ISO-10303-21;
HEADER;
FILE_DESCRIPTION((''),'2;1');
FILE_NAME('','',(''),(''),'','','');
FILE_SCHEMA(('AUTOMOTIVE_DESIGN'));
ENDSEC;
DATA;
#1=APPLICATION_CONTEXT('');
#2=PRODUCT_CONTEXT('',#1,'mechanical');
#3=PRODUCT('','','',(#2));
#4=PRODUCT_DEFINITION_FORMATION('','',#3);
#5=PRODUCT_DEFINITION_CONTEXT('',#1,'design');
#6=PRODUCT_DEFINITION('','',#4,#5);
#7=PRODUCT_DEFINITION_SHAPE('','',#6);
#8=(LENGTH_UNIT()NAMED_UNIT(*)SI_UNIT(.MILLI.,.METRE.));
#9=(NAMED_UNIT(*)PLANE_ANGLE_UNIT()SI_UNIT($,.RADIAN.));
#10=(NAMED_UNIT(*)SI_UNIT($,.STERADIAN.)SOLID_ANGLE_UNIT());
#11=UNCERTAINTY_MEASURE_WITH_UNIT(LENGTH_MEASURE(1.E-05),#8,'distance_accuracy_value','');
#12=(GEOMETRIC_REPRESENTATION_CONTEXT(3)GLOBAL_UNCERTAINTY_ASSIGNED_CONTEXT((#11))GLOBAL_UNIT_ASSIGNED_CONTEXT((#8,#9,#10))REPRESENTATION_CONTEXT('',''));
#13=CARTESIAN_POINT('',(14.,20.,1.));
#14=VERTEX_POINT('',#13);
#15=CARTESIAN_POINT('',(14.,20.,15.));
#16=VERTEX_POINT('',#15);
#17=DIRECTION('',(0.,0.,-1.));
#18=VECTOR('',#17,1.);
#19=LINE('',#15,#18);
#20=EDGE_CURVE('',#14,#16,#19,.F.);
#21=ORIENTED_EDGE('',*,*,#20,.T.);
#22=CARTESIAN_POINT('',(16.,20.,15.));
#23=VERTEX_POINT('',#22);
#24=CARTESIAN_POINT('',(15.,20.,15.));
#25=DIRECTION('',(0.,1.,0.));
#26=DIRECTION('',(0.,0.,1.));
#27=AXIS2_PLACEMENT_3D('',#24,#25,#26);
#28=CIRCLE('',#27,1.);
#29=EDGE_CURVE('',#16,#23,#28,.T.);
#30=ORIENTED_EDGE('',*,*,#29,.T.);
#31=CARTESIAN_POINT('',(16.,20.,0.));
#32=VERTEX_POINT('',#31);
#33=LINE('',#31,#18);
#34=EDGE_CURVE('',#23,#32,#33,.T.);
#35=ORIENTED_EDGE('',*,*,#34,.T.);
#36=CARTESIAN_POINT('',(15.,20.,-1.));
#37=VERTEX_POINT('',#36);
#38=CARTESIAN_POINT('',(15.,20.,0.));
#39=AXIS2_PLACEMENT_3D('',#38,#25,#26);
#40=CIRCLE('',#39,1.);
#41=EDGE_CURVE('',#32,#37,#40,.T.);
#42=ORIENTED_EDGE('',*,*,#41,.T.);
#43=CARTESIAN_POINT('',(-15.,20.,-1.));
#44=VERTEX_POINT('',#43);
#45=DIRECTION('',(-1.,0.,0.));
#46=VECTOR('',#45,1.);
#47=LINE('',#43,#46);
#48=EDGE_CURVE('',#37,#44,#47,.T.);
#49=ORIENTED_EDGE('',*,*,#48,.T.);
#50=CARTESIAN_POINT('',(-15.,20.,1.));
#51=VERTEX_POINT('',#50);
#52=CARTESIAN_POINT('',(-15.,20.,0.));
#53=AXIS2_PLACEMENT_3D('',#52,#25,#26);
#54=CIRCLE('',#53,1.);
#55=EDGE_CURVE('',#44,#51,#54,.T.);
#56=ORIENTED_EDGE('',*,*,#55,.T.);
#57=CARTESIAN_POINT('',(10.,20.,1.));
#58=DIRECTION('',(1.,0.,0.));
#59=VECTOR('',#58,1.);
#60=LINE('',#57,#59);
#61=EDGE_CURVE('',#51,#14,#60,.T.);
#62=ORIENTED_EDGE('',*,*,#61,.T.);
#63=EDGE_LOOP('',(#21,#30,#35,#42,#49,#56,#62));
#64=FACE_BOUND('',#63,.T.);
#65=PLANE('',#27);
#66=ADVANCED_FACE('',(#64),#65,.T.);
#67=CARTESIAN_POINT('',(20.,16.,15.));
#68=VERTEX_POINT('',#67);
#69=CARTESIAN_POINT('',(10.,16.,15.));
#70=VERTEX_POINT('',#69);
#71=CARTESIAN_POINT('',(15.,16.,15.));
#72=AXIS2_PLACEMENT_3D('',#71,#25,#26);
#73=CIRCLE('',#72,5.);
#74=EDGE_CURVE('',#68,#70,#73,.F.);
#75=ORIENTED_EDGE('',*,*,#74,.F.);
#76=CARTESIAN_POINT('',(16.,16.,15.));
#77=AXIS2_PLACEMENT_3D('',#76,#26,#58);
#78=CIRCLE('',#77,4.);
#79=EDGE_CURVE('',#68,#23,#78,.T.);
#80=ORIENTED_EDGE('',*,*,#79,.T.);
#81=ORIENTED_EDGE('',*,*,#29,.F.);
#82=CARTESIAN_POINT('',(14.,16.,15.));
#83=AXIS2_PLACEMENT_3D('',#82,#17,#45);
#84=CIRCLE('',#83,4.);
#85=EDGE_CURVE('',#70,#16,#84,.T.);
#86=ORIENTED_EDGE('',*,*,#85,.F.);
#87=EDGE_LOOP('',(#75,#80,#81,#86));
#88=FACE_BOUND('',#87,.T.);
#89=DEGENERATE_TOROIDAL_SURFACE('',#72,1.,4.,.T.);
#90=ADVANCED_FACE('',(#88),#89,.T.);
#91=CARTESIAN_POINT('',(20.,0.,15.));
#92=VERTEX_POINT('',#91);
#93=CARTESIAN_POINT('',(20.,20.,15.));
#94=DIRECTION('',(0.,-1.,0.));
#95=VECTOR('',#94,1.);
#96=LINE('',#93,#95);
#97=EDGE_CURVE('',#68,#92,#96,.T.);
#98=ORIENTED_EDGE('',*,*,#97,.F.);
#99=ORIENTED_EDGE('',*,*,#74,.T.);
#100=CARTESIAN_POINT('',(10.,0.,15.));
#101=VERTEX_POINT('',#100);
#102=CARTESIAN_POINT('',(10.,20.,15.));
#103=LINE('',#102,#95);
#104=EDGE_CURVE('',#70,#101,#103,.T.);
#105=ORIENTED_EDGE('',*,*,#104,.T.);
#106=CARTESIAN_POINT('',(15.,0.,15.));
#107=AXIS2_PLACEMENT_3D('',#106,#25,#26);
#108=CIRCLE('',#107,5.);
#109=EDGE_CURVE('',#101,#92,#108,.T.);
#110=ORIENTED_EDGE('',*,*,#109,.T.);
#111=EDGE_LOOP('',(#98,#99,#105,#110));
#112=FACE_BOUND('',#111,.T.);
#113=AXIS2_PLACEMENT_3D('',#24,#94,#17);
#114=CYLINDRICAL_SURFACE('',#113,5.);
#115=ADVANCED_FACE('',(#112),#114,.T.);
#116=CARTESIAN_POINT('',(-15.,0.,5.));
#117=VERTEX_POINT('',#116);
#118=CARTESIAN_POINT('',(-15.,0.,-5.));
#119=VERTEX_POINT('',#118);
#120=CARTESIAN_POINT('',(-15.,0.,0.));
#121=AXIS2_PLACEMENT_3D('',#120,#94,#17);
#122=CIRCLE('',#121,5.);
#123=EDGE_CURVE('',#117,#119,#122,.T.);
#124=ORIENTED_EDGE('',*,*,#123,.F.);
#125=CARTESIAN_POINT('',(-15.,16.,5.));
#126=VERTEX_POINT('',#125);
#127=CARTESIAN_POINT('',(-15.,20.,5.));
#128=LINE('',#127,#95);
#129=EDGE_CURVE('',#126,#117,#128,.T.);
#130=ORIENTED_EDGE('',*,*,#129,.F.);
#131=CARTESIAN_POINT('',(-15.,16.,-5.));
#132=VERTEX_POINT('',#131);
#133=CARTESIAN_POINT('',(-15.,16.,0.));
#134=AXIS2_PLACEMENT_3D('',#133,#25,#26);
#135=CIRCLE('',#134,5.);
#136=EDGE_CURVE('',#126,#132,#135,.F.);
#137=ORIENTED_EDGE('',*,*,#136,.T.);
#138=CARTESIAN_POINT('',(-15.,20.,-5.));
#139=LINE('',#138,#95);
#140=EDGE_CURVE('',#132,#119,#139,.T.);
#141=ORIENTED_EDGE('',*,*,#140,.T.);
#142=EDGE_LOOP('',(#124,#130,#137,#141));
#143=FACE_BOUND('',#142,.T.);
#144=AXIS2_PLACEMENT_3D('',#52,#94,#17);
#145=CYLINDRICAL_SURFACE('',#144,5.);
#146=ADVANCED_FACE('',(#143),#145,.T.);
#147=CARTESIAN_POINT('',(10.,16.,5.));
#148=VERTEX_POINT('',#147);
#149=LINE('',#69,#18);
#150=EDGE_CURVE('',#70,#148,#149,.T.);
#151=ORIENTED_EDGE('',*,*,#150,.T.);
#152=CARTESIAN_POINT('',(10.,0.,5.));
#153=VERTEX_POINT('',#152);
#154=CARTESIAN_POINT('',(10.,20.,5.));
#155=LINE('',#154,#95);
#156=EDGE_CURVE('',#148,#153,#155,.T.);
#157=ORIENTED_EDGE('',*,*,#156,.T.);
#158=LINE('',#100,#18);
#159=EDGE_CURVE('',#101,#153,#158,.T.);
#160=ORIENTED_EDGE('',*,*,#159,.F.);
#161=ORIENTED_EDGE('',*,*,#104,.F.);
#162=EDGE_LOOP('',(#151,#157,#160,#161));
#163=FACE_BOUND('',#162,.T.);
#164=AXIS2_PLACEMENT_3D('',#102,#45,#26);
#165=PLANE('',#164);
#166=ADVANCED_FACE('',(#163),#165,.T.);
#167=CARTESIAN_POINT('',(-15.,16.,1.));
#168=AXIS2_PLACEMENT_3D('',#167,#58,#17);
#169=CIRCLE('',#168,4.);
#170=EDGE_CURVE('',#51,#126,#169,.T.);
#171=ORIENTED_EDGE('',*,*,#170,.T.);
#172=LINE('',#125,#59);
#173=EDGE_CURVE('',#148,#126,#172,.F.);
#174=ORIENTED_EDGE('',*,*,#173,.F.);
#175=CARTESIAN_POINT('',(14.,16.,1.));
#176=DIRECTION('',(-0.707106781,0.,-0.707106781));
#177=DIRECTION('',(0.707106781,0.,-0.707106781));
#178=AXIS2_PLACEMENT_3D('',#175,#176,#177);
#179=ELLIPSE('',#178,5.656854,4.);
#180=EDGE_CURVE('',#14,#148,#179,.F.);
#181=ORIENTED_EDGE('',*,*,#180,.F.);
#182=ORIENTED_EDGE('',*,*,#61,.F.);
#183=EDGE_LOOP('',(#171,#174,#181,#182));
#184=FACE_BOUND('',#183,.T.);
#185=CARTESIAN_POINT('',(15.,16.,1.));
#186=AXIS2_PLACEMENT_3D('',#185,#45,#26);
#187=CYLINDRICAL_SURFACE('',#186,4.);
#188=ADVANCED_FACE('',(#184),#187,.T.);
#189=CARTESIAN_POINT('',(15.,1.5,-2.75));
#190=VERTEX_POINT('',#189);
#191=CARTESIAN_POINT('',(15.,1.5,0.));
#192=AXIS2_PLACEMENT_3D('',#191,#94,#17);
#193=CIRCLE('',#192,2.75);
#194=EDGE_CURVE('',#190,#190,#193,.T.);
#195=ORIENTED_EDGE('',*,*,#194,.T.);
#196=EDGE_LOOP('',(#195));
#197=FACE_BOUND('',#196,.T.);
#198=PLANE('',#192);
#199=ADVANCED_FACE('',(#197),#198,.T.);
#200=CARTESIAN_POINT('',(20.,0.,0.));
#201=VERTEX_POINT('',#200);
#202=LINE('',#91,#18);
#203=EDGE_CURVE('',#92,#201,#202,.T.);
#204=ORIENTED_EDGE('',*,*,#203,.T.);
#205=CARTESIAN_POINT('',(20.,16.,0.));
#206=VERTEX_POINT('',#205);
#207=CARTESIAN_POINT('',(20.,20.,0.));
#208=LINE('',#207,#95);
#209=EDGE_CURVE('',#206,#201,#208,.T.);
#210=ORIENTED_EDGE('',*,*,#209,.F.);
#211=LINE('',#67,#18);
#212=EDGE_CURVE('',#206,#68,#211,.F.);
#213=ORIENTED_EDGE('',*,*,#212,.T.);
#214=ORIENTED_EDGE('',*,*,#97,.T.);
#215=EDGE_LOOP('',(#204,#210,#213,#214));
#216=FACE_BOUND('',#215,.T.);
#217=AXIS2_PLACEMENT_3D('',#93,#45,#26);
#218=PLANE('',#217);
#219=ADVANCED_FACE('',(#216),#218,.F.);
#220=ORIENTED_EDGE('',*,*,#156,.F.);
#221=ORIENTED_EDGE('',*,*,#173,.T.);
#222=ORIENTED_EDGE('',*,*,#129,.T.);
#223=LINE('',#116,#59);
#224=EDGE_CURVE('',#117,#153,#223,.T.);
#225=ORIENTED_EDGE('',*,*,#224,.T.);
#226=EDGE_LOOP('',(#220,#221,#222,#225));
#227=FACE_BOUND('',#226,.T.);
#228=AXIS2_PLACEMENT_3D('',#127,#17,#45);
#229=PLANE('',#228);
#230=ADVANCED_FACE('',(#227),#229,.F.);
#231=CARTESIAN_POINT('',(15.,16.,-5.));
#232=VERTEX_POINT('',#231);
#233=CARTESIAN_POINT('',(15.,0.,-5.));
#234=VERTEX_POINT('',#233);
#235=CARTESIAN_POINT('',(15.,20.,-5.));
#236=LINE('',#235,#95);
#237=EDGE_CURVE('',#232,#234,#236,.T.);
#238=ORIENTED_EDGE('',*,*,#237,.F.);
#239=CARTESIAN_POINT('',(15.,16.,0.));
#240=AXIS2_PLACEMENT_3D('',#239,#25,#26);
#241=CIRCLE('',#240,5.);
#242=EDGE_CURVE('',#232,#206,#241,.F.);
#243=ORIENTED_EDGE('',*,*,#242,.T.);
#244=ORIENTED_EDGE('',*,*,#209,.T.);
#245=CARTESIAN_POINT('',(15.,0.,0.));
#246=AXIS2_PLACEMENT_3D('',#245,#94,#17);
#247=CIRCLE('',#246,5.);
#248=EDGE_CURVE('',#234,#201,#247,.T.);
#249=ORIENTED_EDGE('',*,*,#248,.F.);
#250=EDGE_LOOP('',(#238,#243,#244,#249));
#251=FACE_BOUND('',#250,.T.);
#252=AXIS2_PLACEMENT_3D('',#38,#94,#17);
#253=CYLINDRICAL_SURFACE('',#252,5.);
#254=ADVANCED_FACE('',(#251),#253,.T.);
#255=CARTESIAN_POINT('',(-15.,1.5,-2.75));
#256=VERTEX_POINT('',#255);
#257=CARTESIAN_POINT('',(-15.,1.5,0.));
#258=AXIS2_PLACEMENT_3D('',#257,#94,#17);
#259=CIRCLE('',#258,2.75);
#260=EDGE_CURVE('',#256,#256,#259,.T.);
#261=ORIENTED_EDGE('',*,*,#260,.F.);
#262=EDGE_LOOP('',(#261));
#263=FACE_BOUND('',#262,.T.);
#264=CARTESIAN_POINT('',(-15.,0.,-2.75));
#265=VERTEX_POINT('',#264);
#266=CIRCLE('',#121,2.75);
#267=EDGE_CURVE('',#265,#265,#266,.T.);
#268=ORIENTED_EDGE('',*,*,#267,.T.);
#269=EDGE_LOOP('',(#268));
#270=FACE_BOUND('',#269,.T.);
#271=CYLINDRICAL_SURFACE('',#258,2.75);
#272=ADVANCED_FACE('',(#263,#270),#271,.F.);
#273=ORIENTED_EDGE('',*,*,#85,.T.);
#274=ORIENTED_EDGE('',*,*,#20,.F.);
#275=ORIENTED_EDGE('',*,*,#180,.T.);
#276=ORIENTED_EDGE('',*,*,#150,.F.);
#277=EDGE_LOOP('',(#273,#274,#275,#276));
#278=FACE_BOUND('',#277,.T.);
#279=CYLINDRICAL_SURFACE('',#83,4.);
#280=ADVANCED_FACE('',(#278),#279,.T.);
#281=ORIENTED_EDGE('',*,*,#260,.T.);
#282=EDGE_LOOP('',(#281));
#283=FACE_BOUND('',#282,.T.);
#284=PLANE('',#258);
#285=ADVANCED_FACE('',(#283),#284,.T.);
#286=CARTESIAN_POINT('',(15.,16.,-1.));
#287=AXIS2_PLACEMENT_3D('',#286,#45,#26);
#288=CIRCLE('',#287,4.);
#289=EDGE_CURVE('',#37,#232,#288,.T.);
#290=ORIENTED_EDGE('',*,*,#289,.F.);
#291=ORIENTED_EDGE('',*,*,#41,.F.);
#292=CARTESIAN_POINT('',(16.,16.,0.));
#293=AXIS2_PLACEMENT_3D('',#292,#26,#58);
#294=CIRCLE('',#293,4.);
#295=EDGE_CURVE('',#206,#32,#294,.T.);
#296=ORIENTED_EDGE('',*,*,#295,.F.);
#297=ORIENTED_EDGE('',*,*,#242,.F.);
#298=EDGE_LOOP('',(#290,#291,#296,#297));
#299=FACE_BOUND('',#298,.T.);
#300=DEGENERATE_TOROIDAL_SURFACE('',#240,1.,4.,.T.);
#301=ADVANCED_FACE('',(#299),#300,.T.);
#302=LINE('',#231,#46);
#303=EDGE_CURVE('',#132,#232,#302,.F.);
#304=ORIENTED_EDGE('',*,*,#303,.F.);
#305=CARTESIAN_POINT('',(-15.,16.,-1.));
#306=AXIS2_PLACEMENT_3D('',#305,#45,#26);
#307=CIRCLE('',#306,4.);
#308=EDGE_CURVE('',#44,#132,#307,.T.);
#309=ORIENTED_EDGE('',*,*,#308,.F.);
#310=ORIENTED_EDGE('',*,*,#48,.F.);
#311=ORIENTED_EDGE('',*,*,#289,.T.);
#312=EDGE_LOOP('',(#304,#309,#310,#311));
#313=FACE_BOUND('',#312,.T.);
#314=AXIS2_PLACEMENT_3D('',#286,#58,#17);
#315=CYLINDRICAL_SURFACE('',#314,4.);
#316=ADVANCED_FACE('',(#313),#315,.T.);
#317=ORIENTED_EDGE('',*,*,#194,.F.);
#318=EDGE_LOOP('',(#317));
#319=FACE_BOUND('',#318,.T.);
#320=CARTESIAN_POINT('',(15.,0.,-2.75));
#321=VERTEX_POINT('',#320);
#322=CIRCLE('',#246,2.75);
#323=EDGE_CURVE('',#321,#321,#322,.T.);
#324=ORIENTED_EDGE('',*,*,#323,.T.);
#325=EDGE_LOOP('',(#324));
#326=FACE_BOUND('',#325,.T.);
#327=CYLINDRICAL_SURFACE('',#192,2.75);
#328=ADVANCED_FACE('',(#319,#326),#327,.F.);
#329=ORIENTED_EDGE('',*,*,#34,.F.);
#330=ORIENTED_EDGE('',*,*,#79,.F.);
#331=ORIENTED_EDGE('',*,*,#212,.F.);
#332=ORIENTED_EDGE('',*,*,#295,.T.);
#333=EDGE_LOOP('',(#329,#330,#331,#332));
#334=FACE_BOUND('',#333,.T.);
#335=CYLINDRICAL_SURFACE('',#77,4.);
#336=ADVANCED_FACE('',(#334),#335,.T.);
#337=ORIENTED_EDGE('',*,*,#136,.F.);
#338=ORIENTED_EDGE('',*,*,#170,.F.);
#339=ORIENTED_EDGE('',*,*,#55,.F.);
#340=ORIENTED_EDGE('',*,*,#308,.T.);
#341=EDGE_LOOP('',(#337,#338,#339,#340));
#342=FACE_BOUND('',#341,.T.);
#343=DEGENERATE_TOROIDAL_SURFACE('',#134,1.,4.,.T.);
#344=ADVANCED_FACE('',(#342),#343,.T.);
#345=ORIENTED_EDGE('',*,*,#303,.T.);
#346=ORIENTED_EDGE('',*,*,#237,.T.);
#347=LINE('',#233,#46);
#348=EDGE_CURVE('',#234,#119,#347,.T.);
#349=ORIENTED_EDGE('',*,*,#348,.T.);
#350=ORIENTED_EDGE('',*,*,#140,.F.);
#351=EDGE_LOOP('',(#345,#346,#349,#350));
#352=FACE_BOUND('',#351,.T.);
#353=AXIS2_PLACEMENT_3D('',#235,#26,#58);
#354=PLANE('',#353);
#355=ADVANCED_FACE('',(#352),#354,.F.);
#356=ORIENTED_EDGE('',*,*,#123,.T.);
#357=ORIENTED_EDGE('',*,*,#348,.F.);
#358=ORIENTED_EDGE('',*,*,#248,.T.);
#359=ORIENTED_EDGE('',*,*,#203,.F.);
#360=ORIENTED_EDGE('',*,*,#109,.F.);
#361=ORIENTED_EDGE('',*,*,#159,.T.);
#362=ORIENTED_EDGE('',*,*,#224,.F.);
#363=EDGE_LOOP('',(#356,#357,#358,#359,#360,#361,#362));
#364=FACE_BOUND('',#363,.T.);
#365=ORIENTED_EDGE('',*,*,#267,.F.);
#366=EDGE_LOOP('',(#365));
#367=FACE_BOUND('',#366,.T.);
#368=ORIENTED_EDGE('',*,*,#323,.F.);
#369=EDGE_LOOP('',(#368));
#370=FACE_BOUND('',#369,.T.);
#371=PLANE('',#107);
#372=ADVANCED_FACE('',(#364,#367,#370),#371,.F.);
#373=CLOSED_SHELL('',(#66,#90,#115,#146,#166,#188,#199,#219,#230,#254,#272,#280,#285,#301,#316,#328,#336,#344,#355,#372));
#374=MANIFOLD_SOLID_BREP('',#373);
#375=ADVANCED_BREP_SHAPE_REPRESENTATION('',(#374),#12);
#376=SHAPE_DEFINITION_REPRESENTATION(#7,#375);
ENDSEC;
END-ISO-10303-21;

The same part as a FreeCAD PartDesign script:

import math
import FreeCAD as App
import Part
import Sketcher


def edges_at(feature, points):
    """Names of the edges that pass closest to the given points."""
    edges = feature.Shape.Edges
    near = lambda p: min(range(len(edges)), key=lambda i: edges[i].distToShape(Part.Vertex(*p))[0])
    return sorted({f"Edge{near(p) + 1}" for p in points})

doc = App.newDocument("Part")
body = doc.addObject("PartDesign::Body", "Body")

# Sketch on XZ plane
sketch1 = body.newObject("Sketcher::SketchObject", "Sketch")
sketch1.AttachmentSupport = (doc.getObject("XZ_Plane"), [""])
sketch1.MapMode = "FlatFace"
sketch1.addGeometry(Part.LineSegment(App.Vector(-15, 5, 0), App.Vector(10, 5, 0)), False)
sketch1.addGeometry(Part.LineSegment(App.Vector(10, 5, 0), App.Vector(10, 15, 0)), False)
sketch1.addGeometry(Part.ArcOfCircle(Part.Circle(App.Vector(15, 15, 0), App.Vector(0, 0, 1), 5), math.radians(0), math.radians(180)), False)
sketch1.addGeometry(Part.LineSegment(App.Vector(20, 15, 0), App.Vector(20, 0, 0)), False)
sketch1.addGeometry(Part.ArcOfCircle(Part.Circle(App.Vector(15, 0, 0), App.Vector(0, 0, 1), 5), math.radians(-90), math.radians(0)), False)
sketch1.addGeometry(Part.LineSegment(App.Vector(15, -5, 0), App.Vector(-15, -5, 0)), False)
sketch1.addGeometry(Part.ArcOfCircle(Part.Circle(App.Vector(-15, 0, 0), App.Vector(0, 0, 1), 5), math.radians(90), math.radians(270)), False)
sketch1.addConstraint(Sketcher.Constraint("Coincident", 0, 2, 1, 1))
sketch1.addConstraint(Sketcher.Constraint("Tangent", 1, 2, 2, 2))
sketch1.addConstraint(Sketcher.Constraint("Tangent", 2, 1, 3, 1))
sketch1.addConstraint(Sketcher.Constraint("Tangent", 3, 2, 4, 2))
sketch1.addConstraint(Sketcher.Constraint("Tangent", 4, 1, 5, 1))
sketch1.addConstraint(Sketcher.Constraint("Tangent", 5, 2, 6, 2))
sketch1.addConstraint(Sketcher.Constraint("Tangent", 6, 1, 0, 1))
sketch1.addConstraint(Sketcher.Constraint("Horizontal", 0))
sketch1.addConstraint(Sketcher.Constraint("Vertical", 1))
sketch1.addConstraint(Sketcher.Constraint("Vertical", 3))
sketch1.addConstraint(Sketcher.Constraint("Horizontal", 5))
sketch1.addConstraint(Sketcher.Constraint("Equal", 2, 4))
sketch1.addConstraint(Sketcher.Constraint("Equal", 4, 6))
sketch1.addConstraint(Sketcher.Constraint("Symmetric", 4, 3, 6, 3, -1, 1))
sketch1.addConstraint(Sketcher.Constraint("Radius", 2, 5.0))
sketch1.addConstraint(Sketcher.Constraint("DistanceX", 0, 1, 0, 2, 25.0))
sketch1.addConstraint(Sketcher.Constraint("DistanceY", 1, 1, 1, 2, 10.0))
pad1 = body.newObject("PartDesign::Pad", "Pad")
pad1.Profile = sketch1
pad1.Length = 20
pad1.Reversed = True
doc.recompute()

fillet = body.newObject("PartDesign::Fillet", "Fillet")
fillet.Base = (pad1, edges_at(pad1, [
    (15, 20, 20),
    (20, 20, 7.5),
    (18.536, 20, -3.536),
    (0, 20, -5),
    (-20, 20, 0),
    (-2.5, 20, 5),
    (10, 20, 10),
]))
fillet.Radius = 4

# Sketch on XZ plane
sketch2 = body.newObject("Sketcher::SketchObject", "Sketch001")
sketch2.AttachmentSupport = (doc.getObject("XZ_Plane"), [""])
sketch2.MapMode = "FlatFace"
sketch2.addGeometry(Part.Circle(App.Vector(-15, 0, 0), App.Vector(0, 0, 1), 2.75), False)
sketch2.addConstraint(Sketcher.Constraint("PointOnObject", 0, 3, -1))
sketch2.addConstraint(Sketcher.Constraint("Diameter", 0, 5.5))
sketch2.addConstraint(Sketcher.Constraint("DistanceX", 0, 3, -1, 1, 15.0))
pocket1 = body.newObject("PartDesign::Pocket", "Pocket")
pocket1.Profile = sketch2
pocket1.Length = 1.5
doc.recompute()

linearpattern = body.newObject("PartDesign::LinearPattern", "LinearPattern")
linearpattern.Originals = [pocket1]
linearpattern.Direction = (doc.getObject("X_Axis"), [""])
linearpattern.Mode = "offset"
linearpattern.Offset = 30
linearpattern.Occurrences = 2
body.Tip = linearpattern

doc.recompute()
